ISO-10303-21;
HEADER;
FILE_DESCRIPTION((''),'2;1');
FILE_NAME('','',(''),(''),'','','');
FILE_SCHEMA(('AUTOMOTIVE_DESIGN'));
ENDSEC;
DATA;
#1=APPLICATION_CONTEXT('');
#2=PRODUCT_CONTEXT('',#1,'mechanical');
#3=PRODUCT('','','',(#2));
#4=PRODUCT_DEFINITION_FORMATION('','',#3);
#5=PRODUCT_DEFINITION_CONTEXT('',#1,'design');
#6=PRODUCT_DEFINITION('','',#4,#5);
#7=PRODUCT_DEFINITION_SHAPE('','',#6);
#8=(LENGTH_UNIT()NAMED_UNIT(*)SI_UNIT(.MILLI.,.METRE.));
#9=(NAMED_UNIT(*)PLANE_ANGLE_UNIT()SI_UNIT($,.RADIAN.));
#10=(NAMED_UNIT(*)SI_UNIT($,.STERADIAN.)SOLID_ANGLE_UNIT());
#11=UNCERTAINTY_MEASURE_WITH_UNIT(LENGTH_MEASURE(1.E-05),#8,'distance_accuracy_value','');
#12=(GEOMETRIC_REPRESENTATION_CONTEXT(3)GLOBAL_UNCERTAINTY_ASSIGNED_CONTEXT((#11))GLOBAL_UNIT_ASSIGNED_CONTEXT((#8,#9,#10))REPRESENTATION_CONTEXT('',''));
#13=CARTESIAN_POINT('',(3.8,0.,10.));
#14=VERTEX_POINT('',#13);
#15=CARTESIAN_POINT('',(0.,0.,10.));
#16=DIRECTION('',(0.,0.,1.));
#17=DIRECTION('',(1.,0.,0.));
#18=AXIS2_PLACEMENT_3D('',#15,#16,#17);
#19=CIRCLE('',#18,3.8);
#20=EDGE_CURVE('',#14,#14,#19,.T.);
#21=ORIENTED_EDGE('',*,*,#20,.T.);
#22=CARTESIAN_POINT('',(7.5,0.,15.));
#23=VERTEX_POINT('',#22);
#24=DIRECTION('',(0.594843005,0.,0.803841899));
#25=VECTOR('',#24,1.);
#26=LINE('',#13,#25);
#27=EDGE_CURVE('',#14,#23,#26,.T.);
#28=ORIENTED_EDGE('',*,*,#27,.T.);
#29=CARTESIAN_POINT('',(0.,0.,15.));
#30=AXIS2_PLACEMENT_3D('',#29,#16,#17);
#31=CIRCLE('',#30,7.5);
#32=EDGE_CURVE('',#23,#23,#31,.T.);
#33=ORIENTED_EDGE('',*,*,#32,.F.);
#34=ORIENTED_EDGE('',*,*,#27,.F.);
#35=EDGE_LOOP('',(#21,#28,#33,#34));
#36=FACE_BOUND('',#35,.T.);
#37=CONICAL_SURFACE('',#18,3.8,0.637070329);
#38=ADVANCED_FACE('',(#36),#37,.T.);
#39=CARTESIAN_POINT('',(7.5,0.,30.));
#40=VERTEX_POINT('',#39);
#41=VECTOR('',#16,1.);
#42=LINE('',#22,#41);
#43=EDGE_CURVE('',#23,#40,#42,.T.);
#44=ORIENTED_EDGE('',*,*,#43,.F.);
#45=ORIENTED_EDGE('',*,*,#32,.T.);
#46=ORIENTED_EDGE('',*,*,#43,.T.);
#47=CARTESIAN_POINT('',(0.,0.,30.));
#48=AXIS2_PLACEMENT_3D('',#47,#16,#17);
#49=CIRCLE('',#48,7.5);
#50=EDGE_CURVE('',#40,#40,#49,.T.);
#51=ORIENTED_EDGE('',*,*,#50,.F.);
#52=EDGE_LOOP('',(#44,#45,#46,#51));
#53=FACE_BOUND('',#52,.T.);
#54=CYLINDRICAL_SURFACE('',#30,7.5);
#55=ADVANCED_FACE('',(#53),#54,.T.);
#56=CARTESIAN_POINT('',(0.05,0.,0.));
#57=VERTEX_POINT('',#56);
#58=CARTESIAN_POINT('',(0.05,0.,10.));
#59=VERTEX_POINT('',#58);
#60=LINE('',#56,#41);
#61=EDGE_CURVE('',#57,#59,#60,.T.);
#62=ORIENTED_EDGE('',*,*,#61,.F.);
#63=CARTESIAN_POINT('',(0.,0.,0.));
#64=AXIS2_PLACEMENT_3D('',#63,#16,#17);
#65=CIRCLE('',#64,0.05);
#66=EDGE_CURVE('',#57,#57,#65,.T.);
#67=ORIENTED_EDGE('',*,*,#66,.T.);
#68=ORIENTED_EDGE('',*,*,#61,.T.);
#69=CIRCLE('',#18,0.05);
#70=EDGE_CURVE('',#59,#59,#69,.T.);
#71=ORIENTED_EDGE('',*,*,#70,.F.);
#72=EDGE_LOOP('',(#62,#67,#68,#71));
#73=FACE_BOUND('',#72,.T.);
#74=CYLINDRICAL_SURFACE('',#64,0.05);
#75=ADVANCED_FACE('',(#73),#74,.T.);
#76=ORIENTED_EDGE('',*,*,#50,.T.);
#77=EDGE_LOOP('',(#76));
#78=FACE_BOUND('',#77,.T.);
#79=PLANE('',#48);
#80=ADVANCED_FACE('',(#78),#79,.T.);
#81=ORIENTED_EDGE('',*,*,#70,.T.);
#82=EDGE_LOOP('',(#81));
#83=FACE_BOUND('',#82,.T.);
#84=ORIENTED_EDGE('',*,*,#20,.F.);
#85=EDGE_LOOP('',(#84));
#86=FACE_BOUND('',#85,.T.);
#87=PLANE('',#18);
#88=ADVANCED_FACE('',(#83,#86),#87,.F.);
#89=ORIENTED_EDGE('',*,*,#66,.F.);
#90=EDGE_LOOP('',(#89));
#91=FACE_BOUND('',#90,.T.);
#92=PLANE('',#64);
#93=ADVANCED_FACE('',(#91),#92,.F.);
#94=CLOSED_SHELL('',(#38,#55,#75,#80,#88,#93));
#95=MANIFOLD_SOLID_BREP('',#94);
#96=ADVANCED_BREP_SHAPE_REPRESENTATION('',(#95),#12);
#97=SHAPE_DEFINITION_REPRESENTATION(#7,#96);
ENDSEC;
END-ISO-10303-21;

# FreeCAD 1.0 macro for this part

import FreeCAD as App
import Part
import Sketcher
from FreeCAD import Vector
Q = App.Units.Quantity

doc = App.newDocument("Part")
body = doc.addObject("PartDesign::Body", "Body")

# Sketch on XZ plane
sketch1 = doc.addObject("Sketcher::SketchObject", "Sketch")
body.addObject(sketch1)
sketch1.AttachmentSupport = (doc.XZ_Plane, [""])
sketch1.MapMode = "FlatFace"
sketch1.addGeometry(Part.LineSegment(Vector(0, 30, 0), Vector(0, 0, 0)), False)
sketch1.addGeometry(Part.LineSegment(Vector(0, 0, 0), Vector(0.05, 0, 0)), False)
sketch1.addGeometry(Part.LineSegment(Vector(0.05, 0, 0), Vector(0.05, 10, 0)), False)
sketch1.addGeometry(Part.LineSegment(Vector(0.05, 10, 0), Vector(3.8, 10, 0)), False)
sketch1.addGeometry(Part.LineSegment(Vector(3.8, 10, 0), Vector(7.5, 15, 0)), False)
sketch1.addGeometry(Part.LineSegment(Vector(7.5, 15, 0), Vector(7.5, 30, 0)), False)
sketch1.addGeometry(Part.LineSegment(Vector(7.5, 30, 0), Vector(0, 30, 0)), False)
sketch1.addConstraint(Sketcher.Constraint("Coincident", 0, 2, 1, 1))
sketch1.addConstraint(Sketcher.Constraint("Coincident", 1, 2, 2, 1))
sketch1.addConstraint(Sketcher.Constraint("Coincident", 2, 2, 3, 1))
sketch1.addConstraint(Sketcher.Constraint("Coincident", 3, 2, 4, 1))
sketch1.addConstraint(Sketcher.Constraint("Coincident", 4, 2, 5, 1))
sketch1.addConstraint(Sketcher.Constraint("Coincident", 5, 2, 6, 1))
sketch1.addConstraint(Sketcher.Constraint("Coincident", 6, 2, 0, 1))
sketch1.addConstraint(Sketcher.Constraint("Vertical", 0))
sketch1.addConstraint(Sketcher.Constraint("Horizontal", 1))
sketch1.addConstraint(Sketcher.Constraint("Vertical", 2))
sketch1.addConstraint(Sketcher.Constraint("Horizontal", 3))
sketch1.addConstraint(Sketcher.Constraint("Vertical", 5))
sketch1.addConstraint(Sketcher.Constraint("Horizontal", 6))
sketch1.addConstraint(Sketcher.Constraint("Coincident", 0, 2, -1, 1))
sketch1.addConstraint(Sketcher.Constraint("DistanceY", 0, 2, 0, 1, Q("30 mm")))
sketch1.addConstraint(Sketcher.Constraint("DistanceY", 2, 1, 2, 2, Q("10 mm")))
sketch1.addConstraint(Sketcher.Constraint("DistanceY", 5, 1, 5, 2, Q("15 mm")))
sketch1.addConstraint(Sketcher.Constraint("DistanceX", 6, 2, 6, 1, Q("7.5 mm")))
sketch1.addConstraint(Sketcher.Constraint("DistanceX", 1, 1, 1, 2, Q("0.05 mm")))
sketch1.addConstraint(Sketcher.Constraint("DistanceX", 3, 1, 3, 2, Q("3.75 mm")))
revolution = doc.addObject("PartDesign::Revolution", "Revolution")
body.addObject(revolution)
revolution.Profile = sketch1
revolution.ReferenceAxis = (sketch1, ["V_Axis"])
revolution.Angle = 360

doc.recompute()
